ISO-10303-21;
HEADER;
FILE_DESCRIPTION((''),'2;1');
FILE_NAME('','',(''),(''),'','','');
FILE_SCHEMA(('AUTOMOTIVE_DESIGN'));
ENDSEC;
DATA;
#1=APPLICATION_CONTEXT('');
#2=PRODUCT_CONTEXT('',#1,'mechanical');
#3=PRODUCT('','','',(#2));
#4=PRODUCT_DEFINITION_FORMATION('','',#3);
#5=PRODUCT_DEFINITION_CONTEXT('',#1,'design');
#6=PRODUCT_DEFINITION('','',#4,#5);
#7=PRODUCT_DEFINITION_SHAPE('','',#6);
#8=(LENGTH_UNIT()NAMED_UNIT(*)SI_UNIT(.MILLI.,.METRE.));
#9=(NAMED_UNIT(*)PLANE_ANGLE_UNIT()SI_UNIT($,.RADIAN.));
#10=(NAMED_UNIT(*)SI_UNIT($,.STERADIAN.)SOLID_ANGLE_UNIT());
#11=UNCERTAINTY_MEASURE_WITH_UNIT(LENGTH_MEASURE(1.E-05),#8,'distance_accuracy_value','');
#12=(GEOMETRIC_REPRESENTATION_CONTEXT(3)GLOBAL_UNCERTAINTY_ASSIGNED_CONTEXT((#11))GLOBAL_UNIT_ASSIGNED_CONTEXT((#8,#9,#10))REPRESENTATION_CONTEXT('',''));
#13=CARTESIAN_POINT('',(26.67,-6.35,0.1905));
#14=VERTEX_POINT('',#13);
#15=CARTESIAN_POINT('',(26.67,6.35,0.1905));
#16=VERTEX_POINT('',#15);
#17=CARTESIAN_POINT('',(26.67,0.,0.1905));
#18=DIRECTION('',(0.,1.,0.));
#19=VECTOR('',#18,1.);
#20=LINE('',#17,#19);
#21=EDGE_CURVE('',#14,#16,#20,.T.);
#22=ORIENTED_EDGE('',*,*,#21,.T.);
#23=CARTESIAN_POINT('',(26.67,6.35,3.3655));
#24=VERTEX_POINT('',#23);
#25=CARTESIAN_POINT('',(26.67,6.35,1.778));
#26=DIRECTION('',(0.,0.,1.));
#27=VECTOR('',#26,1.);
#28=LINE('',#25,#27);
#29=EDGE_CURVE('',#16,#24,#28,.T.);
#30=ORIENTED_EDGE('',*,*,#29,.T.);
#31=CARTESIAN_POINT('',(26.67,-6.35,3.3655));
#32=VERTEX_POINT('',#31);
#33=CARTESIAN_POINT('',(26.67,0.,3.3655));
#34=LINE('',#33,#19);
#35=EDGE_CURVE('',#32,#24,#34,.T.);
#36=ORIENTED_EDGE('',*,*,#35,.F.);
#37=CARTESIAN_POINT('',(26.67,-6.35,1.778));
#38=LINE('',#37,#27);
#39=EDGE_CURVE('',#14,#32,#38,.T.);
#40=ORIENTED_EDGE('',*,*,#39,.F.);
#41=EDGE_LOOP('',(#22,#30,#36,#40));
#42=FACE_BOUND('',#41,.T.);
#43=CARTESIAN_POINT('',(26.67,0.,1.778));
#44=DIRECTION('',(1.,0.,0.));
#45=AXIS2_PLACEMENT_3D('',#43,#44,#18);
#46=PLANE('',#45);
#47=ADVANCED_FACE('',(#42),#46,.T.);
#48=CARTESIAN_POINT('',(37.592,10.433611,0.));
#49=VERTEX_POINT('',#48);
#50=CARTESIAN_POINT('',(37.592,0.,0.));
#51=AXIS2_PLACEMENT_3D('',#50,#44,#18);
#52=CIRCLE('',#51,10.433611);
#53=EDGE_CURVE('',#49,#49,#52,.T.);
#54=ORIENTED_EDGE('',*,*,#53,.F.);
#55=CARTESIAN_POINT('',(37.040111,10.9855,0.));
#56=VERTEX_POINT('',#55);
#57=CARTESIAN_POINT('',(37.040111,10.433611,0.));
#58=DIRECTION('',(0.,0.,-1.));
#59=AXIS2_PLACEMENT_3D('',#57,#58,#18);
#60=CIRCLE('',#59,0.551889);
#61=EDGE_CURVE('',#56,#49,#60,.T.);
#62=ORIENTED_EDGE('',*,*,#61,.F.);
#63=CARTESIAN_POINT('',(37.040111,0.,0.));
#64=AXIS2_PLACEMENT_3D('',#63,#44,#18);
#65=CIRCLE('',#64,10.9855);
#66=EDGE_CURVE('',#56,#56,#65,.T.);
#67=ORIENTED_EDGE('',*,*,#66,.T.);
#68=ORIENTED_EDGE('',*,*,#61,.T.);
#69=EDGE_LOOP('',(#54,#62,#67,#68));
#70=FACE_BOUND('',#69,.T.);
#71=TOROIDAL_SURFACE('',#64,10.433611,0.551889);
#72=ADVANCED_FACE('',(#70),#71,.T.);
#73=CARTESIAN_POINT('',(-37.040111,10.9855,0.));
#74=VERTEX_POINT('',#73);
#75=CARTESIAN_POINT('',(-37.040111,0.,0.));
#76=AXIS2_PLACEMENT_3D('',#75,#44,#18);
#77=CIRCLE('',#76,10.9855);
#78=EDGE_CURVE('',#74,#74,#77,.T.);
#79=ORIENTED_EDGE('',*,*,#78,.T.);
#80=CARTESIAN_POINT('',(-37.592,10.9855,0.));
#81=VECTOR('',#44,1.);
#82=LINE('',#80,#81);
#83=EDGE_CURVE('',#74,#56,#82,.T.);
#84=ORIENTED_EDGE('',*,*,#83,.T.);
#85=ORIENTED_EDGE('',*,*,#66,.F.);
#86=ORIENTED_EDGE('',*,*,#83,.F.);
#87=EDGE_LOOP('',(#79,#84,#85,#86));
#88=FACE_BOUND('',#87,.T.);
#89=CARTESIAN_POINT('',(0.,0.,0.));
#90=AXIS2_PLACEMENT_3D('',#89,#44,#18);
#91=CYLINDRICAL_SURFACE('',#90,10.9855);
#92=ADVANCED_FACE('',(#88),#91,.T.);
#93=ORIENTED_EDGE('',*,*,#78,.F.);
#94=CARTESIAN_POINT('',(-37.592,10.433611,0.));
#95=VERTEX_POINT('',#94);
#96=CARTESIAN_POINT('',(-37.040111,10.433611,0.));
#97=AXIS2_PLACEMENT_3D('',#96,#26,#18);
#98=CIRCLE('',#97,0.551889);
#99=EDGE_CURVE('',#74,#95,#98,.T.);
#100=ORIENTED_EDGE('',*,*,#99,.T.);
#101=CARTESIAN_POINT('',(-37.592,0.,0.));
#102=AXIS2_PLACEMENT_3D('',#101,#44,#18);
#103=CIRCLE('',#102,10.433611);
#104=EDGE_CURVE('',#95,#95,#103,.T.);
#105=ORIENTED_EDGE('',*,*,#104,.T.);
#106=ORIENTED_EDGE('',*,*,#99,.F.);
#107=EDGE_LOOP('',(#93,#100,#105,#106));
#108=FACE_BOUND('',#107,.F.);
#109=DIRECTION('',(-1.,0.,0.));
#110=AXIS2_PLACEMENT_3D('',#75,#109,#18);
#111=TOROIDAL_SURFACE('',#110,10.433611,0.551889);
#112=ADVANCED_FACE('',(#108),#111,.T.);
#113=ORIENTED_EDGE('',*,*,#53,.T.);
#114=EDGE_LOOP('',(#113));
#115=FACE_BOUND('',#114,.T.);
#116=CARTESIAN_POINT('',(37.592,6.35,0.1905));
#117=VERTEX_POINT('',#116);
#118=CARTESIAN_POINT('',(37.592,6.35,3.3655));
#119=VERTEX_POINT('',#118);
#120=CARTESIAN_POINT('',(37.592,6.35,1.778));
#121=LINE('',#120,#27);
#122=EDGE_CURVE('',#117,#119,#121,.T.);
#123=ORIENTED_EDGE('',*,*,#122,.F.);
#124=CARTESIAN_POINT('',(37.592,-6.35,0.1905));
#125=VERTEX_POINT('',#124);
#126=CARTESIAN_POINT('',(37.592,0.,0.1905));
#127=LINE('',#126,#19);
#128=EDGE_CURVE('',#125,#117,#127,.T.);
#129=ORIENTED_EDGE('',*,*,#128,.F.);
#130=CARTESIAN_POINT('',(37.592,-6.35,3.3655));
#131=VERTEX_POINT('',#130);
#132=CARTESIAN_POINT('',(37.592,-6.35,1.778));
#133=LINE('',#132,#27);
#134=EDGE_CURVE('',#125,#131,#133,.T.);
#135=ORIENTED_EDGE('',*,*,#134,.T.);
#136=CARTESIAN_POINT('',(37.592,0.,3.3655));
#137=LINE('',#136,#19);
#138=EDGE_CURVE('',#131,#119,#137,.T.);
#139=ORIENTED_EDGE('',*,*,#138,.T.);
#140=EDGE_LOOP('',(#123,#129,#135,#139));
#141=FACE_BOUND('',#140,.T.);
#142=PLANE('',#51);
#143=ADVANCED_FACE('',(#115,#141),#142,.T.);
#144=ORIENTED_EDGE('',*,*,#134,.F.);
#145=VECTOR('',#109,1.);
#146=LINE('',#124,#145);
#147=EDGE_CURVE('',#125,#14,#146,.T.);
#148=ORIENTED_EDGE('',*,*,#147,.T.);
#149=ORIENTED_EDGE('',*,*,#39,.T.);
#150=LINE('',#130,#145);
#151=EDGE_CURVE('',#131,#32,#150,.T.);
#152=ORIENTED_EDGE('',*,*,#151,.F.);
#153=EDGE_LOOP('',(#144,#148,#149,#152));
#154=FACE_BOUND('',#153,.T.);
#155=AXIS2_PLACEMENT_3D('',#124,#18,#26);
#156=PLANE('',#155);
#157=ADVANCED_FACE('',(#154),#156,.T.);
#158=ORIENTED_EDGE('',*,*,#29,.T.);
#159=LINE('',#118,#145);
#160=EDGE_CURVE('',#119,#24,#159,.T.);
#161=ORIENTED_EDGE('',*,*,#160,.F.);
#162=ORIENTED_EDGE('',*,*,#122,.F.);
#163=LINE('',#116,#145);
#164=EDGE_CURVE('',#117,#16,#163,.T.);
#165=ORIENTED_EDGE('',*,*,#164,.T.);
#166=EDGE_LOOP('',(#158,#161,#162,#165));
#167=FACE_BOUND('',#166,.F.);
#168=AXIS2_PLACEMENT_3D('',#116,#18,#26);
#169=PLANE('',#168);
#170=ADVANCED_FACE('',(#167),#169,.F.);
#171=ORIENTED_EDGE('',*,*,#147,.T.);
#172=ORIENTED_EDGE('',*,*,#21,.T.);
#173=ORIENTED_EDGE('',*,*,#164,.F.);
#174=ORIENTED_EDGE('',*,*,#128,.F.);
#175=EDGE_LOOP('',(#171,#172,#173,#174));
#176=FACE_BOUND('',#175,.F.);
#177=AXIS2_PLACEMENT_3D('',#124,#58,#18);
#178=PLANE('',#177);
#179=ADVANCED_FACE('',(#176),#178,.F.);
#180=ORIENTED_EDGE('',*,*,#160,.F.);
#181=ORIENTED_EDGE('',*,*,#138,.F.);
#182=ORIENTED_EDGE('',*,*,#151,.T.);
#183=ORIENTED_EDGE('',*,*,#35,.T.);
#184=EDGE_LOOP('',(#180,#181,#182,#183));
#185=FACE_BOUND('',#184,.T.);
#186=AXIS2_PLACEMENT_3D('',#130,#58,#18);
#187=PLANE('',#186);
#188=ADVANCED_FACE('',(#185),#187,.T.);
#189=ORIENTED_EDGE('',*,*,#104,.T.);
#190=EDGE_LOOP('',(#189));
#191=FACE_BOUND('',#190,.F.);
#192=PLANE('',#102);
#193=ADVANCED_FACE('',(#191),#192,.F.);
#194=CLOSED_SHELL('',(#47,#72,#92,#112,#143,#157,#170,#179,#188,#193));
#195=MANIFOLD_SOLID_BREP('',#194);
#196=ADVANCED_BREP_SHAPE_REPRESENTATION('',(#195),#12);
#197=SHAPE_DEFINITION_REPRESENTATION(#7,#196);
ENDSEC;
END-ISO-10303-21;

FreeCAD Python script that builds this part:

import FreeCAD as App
import Part
import Sketcher
from FreeCAD import Vector
Q = App.Units.Quantity


def edges_at(feature, points):
    """Names of the edges that pass closest to the given points."""
    edges = feature.Shape.Edges
    near = lambda p: min(range(len(edges)), key=lambda i: edges[i].distToShape(Part.Vertex(*p))[0])
    return sorted({f"Edge{near(p) + 1}" for p in points})

doc = App.newDocument("Part")
body = doc.addObject("PartDesign::Body", "Body")

# Sketch on YZ plane
sketch1 = doc.addObject("Sketcher::SketchObject", "Sketch")
body.addObject(sketch1)
sketch1.AttachmentSupport = (doc.YZ_Plane, [""])
sketch1.MapMode = "FlatFace"
sketch1.addGeometry(Part.Circle(Vector(0, 0, 0), Vector(0, 0, 1), 11), False)
sketch1.addConstraint([
    Sketcher.Constraint("Coincident", 0, 3, -1, 1),
    Sketcher.Constraint("Diameter", 0, Q("0.865 in")),
])
pad1 = doc.addObject("PartDesign::Pad", "Pad")
body.addObject(pad1)
pad1.Profile = sketch1
pad1.Length = Q("2.96 in")
pad1.Midplane = True

# Sketch on YZ plane
sketch2 = doc.addObject("Sketcher::SketchObject", "Sketch001")
body.addObject(sketch2)
sketch2.AttachmentSupport = (doc.YZ_Plane, [""])
sketch2.MapMode = "FlatFace"
sketch2.AttachmentOffset = App.Placement(Vector(0, 0, 1.48 * 25.4), App.Rotation())
sketch2.addGeometry([
    Part.LineSegment(Vector(-6.3, 3.4, 0), Vector(-6.3, 0.2, 0)),
    Part.LineSegment(Vector(-6.3, 0.2, 0), Vector(6.3, 0.2, 0)),
    Part.LineSegment(Vector(6.3, 0.2, 0), Vector(6.3, 3.4, 0)),
    Part.LineSegment(Vector(6.3, 3.4, 0), Vector(-6.3, 3.4, 0)),
], False)
sketch2.addConstraint([
    Sketcher.Constraint("Coincident", 0, 2, 1, 1),
    Sketcher.Constraint("Coincident", 1, 2, 2, 1),
    Sketcher.Constraint("Coincident", 2, 2, 3, 1),
    Sketcher.Constraint("Coincident", 3, 2, 0, 1),
    Sketcher.Constraint("Vertical", 0),
    Sketcher.Constraint("Horizontal", 1),
    Sketcher.Constraint("Vertical", 2),
    Sketcher.Constraint("Horizontal", 3),
    Sketcher.Constraint("DistanceX", 1, 1, 1, 2, Q("0.5 in")),
    Sketcher.Constraint("DistanceY", 0, 2, 0, 1, Q("0.125 in")),
    Sketcher.Constraint("DistanceX", 0, 2, -1, 1, Q("0.25 in")),
    Sketcher.Constraint("DistanceY", -1, 1, 0, 2, Q("0.0075 in")),
])
pocket1 = doc.addObject("PartDesign::Pocket", "Pocket")
body.addObject(pocket1)
pocket1.Profile = sketch2
pocket1.Length = Q("0.43 in")
doc.recompute()

fillet = doc.addObject("PartDesign::Fillet", "Fillet")
body.addObject(fillet)
fillet.Base = (pocket1, edges_at(pocket1, [(37.592, -10.986, 0), (-37.592, -10.986, 0)]))
fillet.Radius = 0.551889

doc.recompute()
